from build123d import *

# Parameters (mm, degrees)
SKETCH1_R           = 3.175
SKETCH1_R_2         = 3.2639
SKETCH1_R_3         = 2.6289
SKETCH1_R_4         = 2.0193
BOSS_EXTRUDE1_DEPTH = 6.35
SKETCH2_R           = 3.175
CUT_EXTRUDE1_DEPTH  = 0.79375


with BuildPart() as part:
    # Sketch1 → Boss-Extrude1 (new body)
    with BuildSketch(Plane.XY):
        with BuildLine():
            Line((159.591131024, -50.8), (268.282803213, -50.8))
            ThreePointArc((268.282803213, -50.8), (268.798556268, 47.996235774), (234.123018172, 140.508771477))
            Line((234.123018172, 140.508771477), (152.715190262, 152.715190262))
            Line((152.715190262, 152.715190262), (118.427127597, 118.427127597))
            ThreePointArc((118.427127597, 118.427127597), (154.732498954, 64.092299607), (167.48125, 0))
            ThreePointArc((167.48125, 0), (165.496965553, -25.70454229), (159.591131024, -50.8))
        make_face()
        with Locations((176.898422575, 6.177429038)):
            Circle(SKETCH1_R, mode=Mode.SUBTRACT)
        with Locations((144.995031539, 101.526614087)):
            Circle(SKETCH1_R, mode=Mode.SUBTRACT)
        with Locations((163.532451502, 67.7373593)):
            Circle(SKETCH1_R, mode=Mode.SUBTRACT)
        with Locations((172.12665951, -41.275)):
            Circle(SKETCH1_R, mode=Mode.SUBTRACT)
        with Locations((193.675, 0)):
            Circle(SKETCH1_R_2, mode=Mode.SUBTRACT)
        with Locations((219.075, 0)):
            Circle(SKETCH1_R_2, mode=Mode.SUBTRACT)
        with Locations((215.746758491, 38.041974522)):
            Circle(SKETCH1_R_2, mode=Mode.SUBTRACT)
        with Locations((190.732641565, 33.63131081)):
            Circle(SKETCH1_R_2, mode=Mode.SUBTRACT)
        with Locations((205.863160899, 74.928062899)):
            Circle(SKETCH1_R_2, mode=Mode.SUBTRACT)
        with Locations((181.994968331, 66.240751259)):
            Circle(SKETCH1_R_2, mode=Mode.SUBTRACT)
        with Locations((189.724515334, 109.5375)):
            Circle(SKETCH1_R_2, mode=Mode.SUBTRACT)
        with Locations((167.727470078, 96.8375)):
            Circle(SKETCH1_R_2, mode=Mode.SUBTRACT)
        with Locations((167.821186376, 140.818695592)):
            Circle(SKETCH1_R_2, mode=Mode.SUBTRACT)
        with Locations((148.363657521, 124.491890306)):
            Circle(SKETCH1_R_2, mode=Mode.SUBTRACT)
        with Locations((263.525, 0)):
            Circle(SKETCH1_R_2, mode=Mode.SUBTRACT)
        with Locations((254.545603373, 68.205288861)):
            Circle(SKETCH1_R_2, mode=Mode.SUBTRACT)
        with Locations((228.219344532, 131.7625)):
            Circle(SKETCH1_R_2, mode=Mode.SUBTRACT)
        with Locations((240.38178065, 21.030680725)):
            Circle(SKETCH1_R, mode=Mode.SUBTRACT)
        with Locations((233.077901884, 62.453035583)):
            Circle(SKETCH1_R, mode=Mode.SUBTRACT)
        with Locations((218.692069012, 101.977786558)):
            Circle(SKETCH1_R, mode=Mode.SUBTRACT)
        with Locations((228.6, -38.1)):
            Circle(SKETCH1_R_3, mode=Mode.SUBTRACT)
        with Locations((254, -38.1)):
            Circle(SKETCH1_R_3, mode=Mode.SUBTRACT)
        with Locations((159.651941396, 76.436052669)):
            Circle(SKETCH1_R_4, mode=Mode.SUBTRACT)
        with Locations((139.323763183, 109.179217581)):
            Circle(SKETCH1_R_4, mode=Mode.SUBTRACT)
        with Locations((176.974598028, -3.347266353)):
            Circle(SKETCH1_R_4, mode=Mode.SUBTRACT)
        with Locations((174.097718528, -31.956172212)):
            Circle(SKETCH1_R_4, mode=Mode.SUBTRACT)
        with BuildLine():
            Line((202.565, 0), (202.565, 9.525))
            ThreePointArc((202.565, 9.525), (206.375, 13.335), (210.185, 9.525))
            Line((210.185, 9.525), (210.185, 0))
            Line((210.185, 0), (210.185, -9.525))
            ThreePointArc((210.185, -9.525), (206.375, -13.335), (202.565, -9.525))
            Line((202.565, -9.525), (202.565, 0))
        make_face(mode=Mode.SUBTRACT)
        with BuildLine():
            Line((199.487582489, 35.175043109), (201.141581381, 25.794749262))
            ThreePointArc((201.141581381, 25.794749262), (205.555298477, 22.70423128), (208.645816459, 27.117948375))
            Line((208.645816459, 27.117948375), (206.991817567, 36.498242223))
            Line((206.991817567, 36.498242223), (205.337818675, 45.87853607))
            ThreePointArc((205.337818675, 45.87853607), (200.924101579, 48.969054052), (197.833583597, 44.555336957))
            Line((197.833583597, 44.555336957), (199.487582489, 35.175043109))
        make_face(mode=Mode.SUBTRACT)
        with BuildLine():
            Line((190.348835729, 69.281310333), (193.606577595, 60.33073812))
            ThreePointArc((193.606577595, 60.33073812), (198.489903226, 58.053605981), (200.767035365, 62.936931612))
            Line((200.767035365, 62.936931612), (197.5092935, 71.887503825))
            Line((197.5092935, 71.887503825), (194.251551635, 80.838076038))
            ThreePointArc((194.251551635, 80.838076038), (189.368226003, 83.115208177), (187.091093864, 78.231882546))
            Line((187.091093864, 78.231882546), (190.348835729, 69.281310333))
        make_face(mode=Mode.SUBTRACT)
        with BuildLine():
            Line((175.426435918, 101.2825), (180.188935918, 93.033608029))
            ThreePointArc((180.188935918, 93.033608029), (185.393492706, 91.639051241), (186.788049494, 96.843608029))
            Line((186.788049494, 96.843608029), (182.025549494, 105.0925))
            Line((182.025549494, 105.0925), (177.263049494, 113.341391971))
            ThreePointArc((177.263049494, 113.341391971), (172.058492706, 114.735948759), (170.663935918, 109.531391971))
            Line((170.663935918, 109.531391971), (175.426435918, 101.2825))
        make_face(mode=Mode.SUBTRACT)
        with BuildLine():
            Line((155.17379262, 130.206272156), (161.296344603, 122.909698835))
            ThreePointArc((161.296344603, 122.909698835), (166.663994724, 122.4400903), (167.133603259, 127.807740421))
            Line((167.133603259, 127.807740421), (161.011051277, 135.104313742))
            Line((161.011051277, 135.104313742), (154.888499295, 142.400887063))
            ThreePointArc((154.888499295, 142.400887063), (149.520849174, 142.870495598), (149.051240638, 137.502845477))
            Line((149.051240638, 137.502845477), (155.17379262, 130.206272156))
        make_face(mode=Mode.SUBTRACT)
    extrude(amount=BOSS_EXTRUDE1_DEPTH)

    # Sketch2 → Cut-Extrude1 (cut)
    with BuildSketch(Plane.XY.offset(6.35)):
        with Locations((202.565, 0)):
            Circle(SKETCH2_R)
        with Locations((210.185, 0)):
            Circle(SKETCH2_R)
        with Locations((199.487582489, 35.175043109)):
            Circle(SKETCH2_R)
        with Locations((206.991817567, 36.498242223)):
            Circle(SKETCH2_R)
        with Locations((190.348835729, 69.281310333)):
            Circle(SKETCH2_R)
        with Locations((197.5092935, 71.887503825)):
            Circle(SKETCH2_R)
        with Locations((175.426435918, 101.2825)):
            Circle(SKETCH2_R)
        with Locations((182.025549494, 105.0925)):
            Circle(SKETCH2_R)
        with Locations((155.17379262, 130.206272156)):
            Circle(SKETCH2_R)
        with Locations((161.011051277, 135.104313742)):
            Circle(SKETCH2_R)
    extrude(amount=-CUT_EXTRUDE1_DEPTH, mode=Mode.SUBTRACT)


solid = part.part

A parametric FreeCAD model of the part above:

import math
import FreeCAD as App
import Part
import Sketcher

V = App.Vector
Q = App.Units.Quantity

doc = App.newDocument("Part")
body = doc.addObject("PartDesign::Body", "Body")

# Sketch on XY plane
sketch1 = body.newObject("Sketcher::SketchObject", "Sketch")
sketch1.AttachmentSupport = (doc.getObject("XY_Plane"), [""])
sketch1.MapMode = "FlatFace"
sketch1.addGeometry(Part.LineSegment(V(159.591131, -50.8, 0), V(268.282803, -50.8, 0)), False)
sketch1.addGeometry(Part.ArcOfCircle(Part.Circle(V(0, 0, 0), V(0, 0, 1), 273.05), math.radians(-10.722152), math.radians(30.970047)), False)
sketch1.addGeometry(Part.LineSegment(V(234.123018, 140.508771, 0), V(152.71519, 152.71519, 0)), False)
sketch1.addGeometry(Part.LineSegment(V(152.71519, 152.71519, 0), V(118.427128, 118.427128, 0)), False)
sketch1.addGeometry(Part.ArcOfCircle(Part.Circle(V(0, 0, 0), V(0, 0, 1), 167.48125), math.radians(0), math.radians(45)), False)
sketch1.addGeometry(Part.ArcOfCircle(Part.Circle(V(0, 0, 0), V(0, 0, 1), 167.48125), math.radians(-17.656971), math.radians(0)), False)
sketch1.addGeometry(Part.Circle(V(172.12666, -41.275, 0), V(0, 0, 1), 3.175), False)
sketch1.addGeometry(Part.Circle(V(174.097719, -31.956172, 0), V(0, 0, 1), 2.0193), False)
sketch1.addGeometry(Part.Circle(V(176.974598, -3.347266, 0), V(0, 0, 1), 2.0193), False)
sketch1.addGeometry(Part.Circle(V(193.675, 0, 0), V(0, 0, 1), 3.2639), False)
sketch1.addGeometry(Part.Circle(V(176.898423, 6.177429, 0), V(0, 0, 1), 3.175), False)
sketch1.addGeometry(Part.Circle(V(190.732642, 33.631311, 0), V(0, 0, 1), 3.2639), False)
sketch1.addGeometry(Part.Circle(V(228.6, -38.1, 0), V(0, 0, 1), 2.6289), False)
sketch1.addGeometry(Part.LineSegment(V(202.565, -9.525, 0), V(202.565, 9.525, 0)), False)
sketch1.addGeometry(Part.ArcOfCircle(Part.Circle(V(206.375, 9.525, 0), V(0, 0, 1), 3.81), math.radians(0), math.radians(180)), False)
sketch1.addGeometry(Part.LineSegment(V(210.185, 9.525, 0), V(210.185, -9.525, 0)), False)
sketch1.addGeometry(Part.ArcOfCircle(Part.Circle(V(206.375, -9.525, 0), V(0, 0, 1), 3.81), math.radians(180), math.radians(360)), False)
sketch1.addGeometry(Part.Circle(V(219.075, 0, 0), V(0, 0, 1), 3.2639), False)
sketch1.addGeometry(Part.Circle(V(254, -38.1, 0), V(0, 0, 1), 2.6289), False)
sketch1.addGeometry(Part.Circle(V(263.525, 0, 0), V(0, 0, 1), 3.2639), False)
sketch1.addGeometry(Part.LineSegment(V(201.141581, 25.794749, 0), V(199.487582, 35.175043, 0)), False)
sketch1.addGeometry(Part.LineSegment(V(199.487582, 35.175043, 0), V(197.833584, 44.555337, 0)), False)
sketch1.addGeometry(Part.ArcOfCircle(Part.Circle(V(201.585701, 45.216937, 0), V(0, 0, 1), 3.81), math.radians(10), math.radians(190)), False)
sketch1.addGeometry(Part.LineSegment(V(205.337819, 45.878536, 0), V(206.991818, 36.498242, 0)), False)
sketch1.addGeometry(Part.LineSegment(V(206.991818, 36.498242, 0), V(208.645816, 27.117948, 0)), False)
sketch1.addGeometry(Part.ArcOfCircle(Part.Circle(V(204.893699, 26.456349, 0), V(0, 0, 1), 3.81), math.radians(-170), math.radians(10)), False)
sketch1.addGeometry(Part.Circle(V(215.746758, 38.041975, 0), V(0, 0, 1), 3.2639), False)
sketch1.addGeometry(Part.Circle(V(240.381781, 21.030681, 0), V(0, 0, 1), 3.175), False)
sketch1.addGeometry(Part.Circle(V(163.532452, 67.737359, 0), V(0, 0, 1), 3.175), False)
sketch1.addGeometry(Part.Circle(V(159.651941, 76.436053, 0), V(0, 0, 1), 2.0193), False)
sketch1.addGeometry(Part.Circle(V(167.72747, 96.8375, 0), V(0, 0, 1), 3.2639), False)
sketch1.addGeometry(Part.Circle(V(181.994968, 66.240751, 0), V(0, 0, 1), 3.2639), False)
sketch1.addGeometry(Part.LineSegment(V(193.606578, 60.330738, 0), V(190.348836, 69.28131, 0)), False)
sketch1.addGeometry(Part.LineSegment(V(190.348836, 69.28131, 0), V(187.091094, 78.231883, 0)), False)
sketch1.addGeometry(Part.ArcOfCircle(Part.Circle(V(190.671323, 79.534979, 0), V(0, 0, 1), 3.81), math.radians(20), math.radians(200)), False)
sketch1.addGeometry(Part.LineSegment(V(194.251552, 80.838076, 0), V(200.767035, 62.936932, 0)), False)
sketch1.addGeometry(Part.ArcOfCircle(Part.Circle(V(197.186806, 61.633835, 0), V(0, 0, 1), 3.81), math.radians(-160), math.radians(20)), False)
sketch1.addGeometry(Part.Circle(V(144.995032, 101.526614, 0), V(0, 0, 1), 3.175), False)
sketch1.addGeometry(Part.Circle(V(139.323763, 109.179218, 0), V(0, 0, 1), 2.0193), False)
sketch1.addGeometry(Part.Circle(V(148.363658, 124.49189, 0), V(0, 0, 1), 3.2639), False)
sketch1.addGeometry(Part.LineSegment(V(161.296345, 122.909699, 0), V(155.173793, 130.206272, 0)), False)
sketch1.addGeometry(Part.LineSegment(V(155.173793, 130.206272, 0), V(149.051241, 137.502845, 0)), False)
sketch1.addGeometry(Part.ArcOfCircle(Part.Circle(V(151.96987, 139.951866, 0), V(0, 0, 1), 3.81), math.radians(40), math.radians(220)), False)
sketch1.addGeometry(Part.LineSegment(V(154.888499, 142.400887, 0), V(167.133603, 127.80774, 0)), False)
sketch1.addGeometry(Part.ArcOfCircle(Part.Circle(V(164.214974, 125.35872, 0), V(0, 0, 1), 3.81), math.radians(-140), math.radians(40)), False)
sketch1.addGeometry(Part.Circle(V(167.821186, 140.818696, 0), V(0, 0, 1), 3.2639), False)
sketch1.addGeometry(Part.ArcOfCircle(Part.Circle(V(183.488493, 94.938608, 0), V(0, 0, 1), 3.81), math.radians(-150), math.radians(30)), False)
sketch1.addGeometry(Part.LineSegment(V(180.188936, 93.033608, 0), V(170.663936, 109.531392, 0)), False)
sketch1.addGeometry(Part.ArcOfCircle(Part.Circle(V(173.963493, 111.436392, 0), V(0, 0, 1), 3.81), math.radians(30), math.radians(210)), False)
sketch1.addGeometry(Part.LineSegment(V(177.263049, 113.341392, 0), V(186.788049, 96.843608, 0)), False)
sketch1.addGeometry(Part.Circle(V(189.724515, 109.5375, 0), V(0, 0, 1), 3.2639), False)
sketch1.addGeometry(Part.Circle(V(233.077902, 62.453036, 0), V(0, 0, 1), 3.175), False)
sketch1.addGeometry(Part.Circle(V(205.863161, 74.928063, 0), V(0, 0, 1), 3.2639), False)
sketch1.addGeometry(Part.Circle(V(254.545603, 68.205289, 0), V(0, 0, 1), 3.2639), False)
sketch1.addGeometry(Part.Circle(V(218.692069, 101.977787, 0), V(0, 0, 1), 3.175), False)
sketch1.addGeometry(Part.Circle(V(228.219345, 131.7625, 0), V(0, 0, 1), 3.2639), False)
sketch1.addConstraint(Sketcher.Constraint("Coincident", 0, 2, 1, 1))
sketch1.addConstraint(Sketcher.Constraint("Coincident", 1, 2, 2, 1))
sketch1.addConstraint(Sketcher.Constraint("Coincident", 2, 2, 3, 1))
sketch1.addConstraint(Sketcher.Constraint("Coincident", 3, 2, 4, 2))
sketch1.addConstraint(Sketcher.Constraint("Tangent", 4, 1, 5, 2))
sketch1.addConstraint(Sketcher.Constraint("Coincident", 5, 1, 0, 1))
sketch1.addConstraint(Sketcher.Constraint("Tangent", 13, 2, 14, 2))
sketch1.addConstraint(Sketcher.Constraint("Tangent", 14, 1, 15, 1))
sketch1.addConstraint(Sketcher.Constraint("Tangent", 15, 2, 16, 2))
sketch1.addConstraint(Sketcher.Constraint("Tangent", 16, 1, 13, 1))
sketch1.addConstraint(Sketcher.Constraint("Coincident", 20, 2, 21, 1))
sketch1.addConstraint(Sketcher.Constraint("Tangent", 21, 2, 22, 2))
sketch1.addConstraint(Sketcher.Constraint("Tangent", 22, 1, 23, 1))
sketch1.addConstraint(Sketcher.Constraint("Coincident", 23, 2, 24, 1))
sketch1.addConstraint(Sketcher.Constraint("Tangent", 24, 2, 25, 2))
sketch1.addConstraint(Sketcher.Constraint("Tangent", 25, 1, 20, 1))
sketch1.addConstraint(Sketcher.Constraint("Coincident", 32, 2, 33, 1))
sketch1.addConstraint(Sketcher.Constraint("Tangent", 33, 2, 34, 2))
sketch1.addConstraint(Sketcher.Constraint("Tangent", 34, 1, 35, 1))
sketch1.addConstraint(Sketcher.Constraint("Tangent", 35, 2, 36, 2))
sketch1.addConstraint(Sketcher.Constraint("Tangent", 36, 1, 32, 1))
sketch1.addConstraint(Sketcher.Constraint("Coincident", 40, 2, 41, 1))
sketch1.addConstraint(Sketcher.Constraint("Tangent", 41, 2, 42, 2))
sketch1.addConstraint(Sketcher.Constraint("Tangent", 42, 1, 43, 1))
sketch1.addConstraint(Sketcher.Constraint("Tangent", 43, 2, 44, 2))
sketch1.addConstraint(Sketcher.Constraint("Tangent", 44, 1, 40, 1))
sketch1.addConstraint(Sketcher.Constraint("Tangent", 46, 1, 47, 1))
sketch1.addConstraint(Sketcher.Constraint("Tangent", 47, 2, 48, 2))
sketch1.addConstraint(Sketcher.Constraint("Tangent", 48, 1, 49, 1))
sketch1.addConstraint(Sketcher.Constraint("Tangent", 49, 2, 46, 2))
sketch1.addConstraint(Sketcher.Constraint("Horizontal", 0))
sketch1.addConstraint(Sketcher.Constraint("Vertical", 13))
sketch1.addConstraint(Sketcher.Constraint("Vertical", 15))
sketch1.addConstraint(Sketcher.Constraint("Coincident", 1, 3, -1, 1))
sketch1.addConstraint(Sketcher.Constraint("Coincident", 4, 3, -1, 1))
sketch1.addConstraint(Sketcher.Constraint("Equal", 4, 5))
sketch1.addConstraint(Sketcher.Constraint("Equal", 7, 8))
sketch1.addConstraint(Sketcher.Constraint("Equal", 6, 10))
sketch1.addConstraint(Sketcher.Constraint("Equal", 9, 11))
sketch1.addConstraint(Sketcher.Constraint("Equal", 11, 17))
sketch1.addConstraint(Sketcher.Constraint("Equal", 12, 18))
sketch1.addConstraint(Sketcher.Constraint("Equal", 17, 19))
sketch1.addConstraint(Sketcher.Constraint("Equal", 16, 22))
sketch1.addConstraint(Sketcher.Constraint("Equal", 22, 25))
sketch1.addConstraint(Sketcher.Constraint("Equal", 19, 26))
sketch1.addConstraint(Sketcher.Constraint("Equal", 10, 27))
sketch1.addConstraint(Sketcher.Constraint("Equal", 27, 28))
sketch1.addConstraint(Sketcher.Constraint("Equal", 8, 29))
sketch1.addConstraint(Sketcher.Constraint("Equal", 26, 30))
sketch1.addConstraint(Sketcher.Constraint("Equal", 30, 31))
sketch1.addConstraint(Sketcher.Constraint("Equal", 25, 34))
sketch1.addConstraint(Sketcher.Constraint("Equal", 34, 36))
sketch1.addConstraint(Sketcher.Constraint("Equal", 28, 37))
sketch1.addConstraint(Sketcher.Constraint("Equal", 29, 38))
sketch1.addConstraint(Sketcher.Constraint("Equal", 31, 39))
sketch1.addConstraint(Sketcher.Constraint("Equal", 36, 42))
sketch1.addConstraint(Sketcher.Constraint("Equal", 42, 44))
sketch1.addConstraint(Sketcher.Constraint("Equal", 39, 45))
sketch1.addConstraint(Sketcher.Constraint("Equal", 44, 46))
sketch1.addConstraint(Sketcher.Constraint("Equal", 46, 48))
sketch1.addConstraint(Sketcher.Constraint("Equal", 45, 50))
sketch1.addConstraint(Sketcher.Constraint("Equal", 37, 51))
sketch1.addConstraint(Sketcher.Constraint("Equal", 50, 52))
sketch1.addConstraint(Sketcher.Constraint("Equal", 52, 53))
sketch1.addConstraint(Sketcher.Constraint("Equal", 51, 54))
sketch1.addConstraint(Sketcher.Constraint("Equal", 53, 55))
sketch1.addConstraint(Sketcher.Constraint("PointOnObject", 9, 3, -1))
sketch1.addConstraint(Sketcher.Constraint("PointOnObject", 17, 3, -1))
sketch1.addConstraint(Sketcher.Constraint("PointOnObject", 19, 3, -1))
sketch1.addConstraint(Sketcher.Constraint("PointOnObject", 4, 1, -1))
sketch1.addConstraint(Sketcher.Constraint("Parallel", 20, 21))
sketch1.addConstraint(Sketcher.Constraint("Parallel", 21, 23))
sketch1.addConstraint(Sketcher.Constraint("Parallel", 32, 33))
sketch1.addConstraint(Sketcher.Constraint("Parallel", 40, 41))
sketch1.addConstraint(Sketcher.Constraint("Horizontal", 12, 3, 18, 3))
sketch1.addConstraint(Sketcher.Constraint("Equal", 20, 21))
sketch1.addConstraint(Sketcher.Constraint("Equal", 21, 23))
sketch1.addConstraint(Sketcher.Constraint("Equal", 24, 32))
sketch1.addConstraint(Sketcher.Constraint("Equal", 32, 33))
sketch1.addConstraint(Sketcher.Constraint("Equal", 33, 40))
sketch1.addConstraint(Sketcher.Constraint("Equal", 40, 41))
sketch1.addConstraint(Sketcher.Constraint("Equal", 43, 47))
sketch1.addConstraint(Sketcher.Constraint("Diameter", 6, Q("0.25 in")))
sketch1.addConstraint(Sketcher.Constraint("Radius", 1, Q("10.75 in")))
sketch1.addConstraint(Sketcher.Constraint("Radius", 14, Q("0.15 in")))
sketch1.addConstraint(Sketcher.Constraint("Diameter", 7, Q("0.159 in")))
sketch1.addConstraint(Sketcher.Constraint("Diameter", 9, Q("0.257 in")))
sketch1.addConstraint(Sketcher.Constraint("Diameter", 12, Q("0.207 in")))
sketch1.addConstraint(Sketcher.Constraint("DistanceX", -1, 1, 12, 3, Q("9 in")))
sketch1.addConstraint(Sketcher.Constraint("DistanceX", -1, 1, 18, 3, Q("10 in")))
sketch1.addConstraint(Sketcher.Constraint("DistanceY", 0, 2, -1, 1, Q("2 in")))
sketch1.addConstraint(Sketcher.Constraint("Angle", 3, Q("-135 deg")))
sketch1.addConstraint(Sketcher.Constraint("Angle", 20, Q("100 deg")))
sketch1.addConstraint(Sketcher.Constraint("Angle", 32, Q("110 deg")))
sketch1.addConstraint(Sketcher.Constraint("Angle", 40, Q("130 deg")))
sketch1.addConstraint(Sketcher.Constraint("Angle", 47, Q("120 deg")))
sketch1.addConstraint(Sketcher.Constraint("Radius", 4, Q("6.59375 in")))
sketch1.addConstraint(Sketcher.Constraint("DistanceY", 13, 1, 13, 2, Q("0.75 in")))
sketch1.addConstraint(Sketcher.Constraint("DistanceY", 12, 3, -1, 1, Q("1.5 in")))
sketch1.addConstraint(Sketcher.Constraint("Distance", 35, Q("0.75 in")))
sketch1.addConstraint(Sketcher.Constraint("DistanceY", 6, 3, -1, 1, Q("1.625 in")))
sketch1.addConstraint(Sketcher.Constraint("DistanceX", -1, 1, 9, 3, Q("7.625 in")))
sketch1.addConstraint(Sketcher.Constraint("DistanceX", -1, 1, 14, 3, Q("8.125 in")))
sketch1.addConstraint(Sketcher.Constraint("DistanceY", -1, 1, 14, 3, Q("0.375 in")))
sketch1.addConstraint(Sketcher.Constraint("DistanceX", -1, 1, 17, 3, Q("8.625 in")))
sketch1.addConstraint(Sketcher.Constraint("DistanceX", -1, 1, 19, 3, Q("10.375 in")))
sketch1.addConstraint(Sketcher.Constraint("DistanceY", -1, 1, 30, 3, Q("3.8125 in")))
sketch1.addConstraint(Sketcher.Constraint("DistanceY", -1, 1, 50, 3, Q("4.3125 in")))
sketch1.addConstraint(Sketcher.Constraint("DistanceY", -1, 1, 55, 3, Q("5.1875 in")))
sketch1.addConstraint(Sketcher.Constraint("DistanceX", -1, 1, 8, 3, Q("176.974598 mm")))
sketch1.addConstraint(Sketcher.Constraint("DistanceX", -1, 1, 22, 3, Q("201.585701 mm")))
sketch1.addConstraint(Sketcher.Constraint("DistanceX", -1, 1, 51, 3, Q("233.077902 mm")))
sketch1.addConstraint(Sketcher.Constraint("DistanceX", -1, 1, 42, 1, Q("154.888499 mm")))
sketch1.addConstraint(Sketcher.Constraint("DistanceY", -1, 1, 44, 1, Q("122.909699 mm")))
sketch1.addConstraint(Sketcher.Constraint("DistanceX", -1, 1, 6, 3, Q("172.12666 mm")))
sketch1.addConstraint(Sketcher.Constraint("DistanceX", -1, 1, 7, 3, Q("174.097719 mm")))
sketch1.addConstraint(Sketcher.Constraint("DistanceY", -1, 1, 10, 3, Q("6.177429 mm")))
sketch1.addConstraint(Sketcher.Constraint("DistanceX", -1, 1, 11, 3, Q("190.732642 mm")))
sketch1.addConstraint(Sketcher.Constraint("DistanceY", -1, 1, 11, 3, Q("33.631311 mm")))
sketch1.addConstraint(Sketcher.Constraint("DistanceY", -1, 1, 25, 3, Q("26.456349 mm")))
sketch1.addConstraint(Sketcher.Constraint("DistanceX", -1, 1, 26, 3, Q("215.746758 mm")))
sketch1.addConstraint(Sketcher.Constraint("DistanceX", -1, 1, 27, 3, Q("240.381781 mm")))
sketch1.addConstraint(Sketcher.Constraint("DistanceY", -1, 1, 27, 3, Q("21.030681 mm")))
sketch1.addConstraint(Sketcher.Constraint("DistanceX", -1, 1, 28, 3, Q("163.532452 mm")))
sketch1.addConstraint(Sketcher.Constraint("DistanceY", -1, 1, 28, 3, Q("67.737359 mm")))
sketch1.addConstraint(Sketcher.Constraint("DistanceX", -1, 1, 29, 3, Q("159.651941 mm")))
sketch1.addConstraint(Sketcher.Constraint("DistanceX", -1, 1, 30, 3, Q("167.72747 mm")))
sketch1.addConstraint(Sketcher.Constraint("DistanceX", -1, 1, 31, 3, Q("181.994968 mm")))
sketch1.addConstraint(Sketcher.Constraint("DistanceY", -1, 1, 31, 3, Q("66.240751 mm")))
sketch1.addConstraint(Sketcher.Constraint("DistanceY", -1, 1, 34, 3, Q("79.534979 mm")))
sketch1.addConstraint(Sketcher.Constraint("DistanceX", -1, 1, 37, 3, Q("144.995032 mm")))
sketch1.addConstraint(Sketcher.Constraint("DistanceY", -1, 1, 39, 3, Q("124.49189 mm")))
sketch1.addConstraint(Sketcher.Constraint("DistanceY", -1, 1, 46, 3, Q("94.938608 mm")))
sketch1.addConstraint(Sketcher.Constraint("DistanceX", -1, 1, 52, 3, Q("205.863161 mm")))
sketch1.addConstraint(Sketcher.Constraint("DistanceY", -1, 1, 53, 3, Q("68.205289 mm")))
sketch1.addConstraint(Sketcher.Constraint("DistanceX", -1, 1, 54, 3, Q("218.692069 mm")))
sketch1.addConstraint(Sketcher.Constraint("DistanceX", -1, 1, 1, 2, Q("234.123018 mm")))
sketch1.addConstraint(Sketcher.Constraint("DistanceX", -1, 1, 2, 2, Q("152.71519 mm")))
sketch1.addConstraint(Sketcher.Constraint("DistanceY", -1, 1, 2, 2, Q("152.71519 mm")))
sketch1.addConstraint(Sketcher.Constraint("DistanceX", -1, 1, 34, 1, Q("194.251552 mm")))
sketch1.addConstraint(Sketcher.Constraint("DistanceX", -1, 1, 48, 1, Q("177.263049 mm")))
sketch1.addConstraint(Sketcher.Constraint("DistanceY", 7, 3, -1, 1, Q("31.956172 mm")))
sketch1.addConstraint(Sketcher.Constraint("DistanceY", 8, 3, -1, 1, Q("3.347266 mm")))
sketch1.addConstraint(Sketcher.Constraint("DistanceX", -1, 1, 10, 3, Q("176.898423 mm")))
sketch1.addConstraint(Sketcher.Constraint("DistanceY", -1, 1, 26, 3, Q("38.041975 mm")))
sketch1.addConstraint(Sketcher.Constraint("DistanceY", -1, 1, 29, 3, Q("76.436053 mm")))
sketch1.addConstraint(Sketcher.Constraint("DistanceY", -1, 1, 37, 3, Q("101.526614 mm")))
sketch1.addConstraint(Sketcher.Constraint("DistanceX", -1, 1, 38, 3, Q("139.323763 mm")))
sketch1.addConstraint(Sketcher.Constraint("DistanceY", -1, 1, 38, 3, Q("109.179218 mm")))
sketch1.addConstraint(Sketcher.Constraint("DistanceX", -1, 1, 39, 3, Q("148.363658 mm")))
sketch1.addConstraint(Sketcher.Constraint("DistanceX", -1, 1, 45, 3, Q("167.821186 mm")))
sketch1.addConstraint(Sketcher.Constraint("DistanceY", -1, 1, 45, 3, Q("140.818696 mm")))
sketch1.addConstraint(Sketcher.Constraint("DistanceX", -1, 1, 50, 3, Q("189.724515 mm")))
sketch1.addConstraint(Sketcher.Constraint("DistanceY", -1, 1, 51, 3, Q("62.453036 mm")))
sketch1.addConstraint(Sketcher.Constraint("DistanceY", -1, 1, 52, 3, Q("74.928063 mm")))
sketch1.addConstraint(Sketcher.Constraint("DistanceX", -1, 1, 53, 3, Q("254.545603 mm")))
sketch1.addConstraint(Sketcher.Constraint("DistanceY", -1, 1, 54, 3, Q("101.977787 mm")))
sketch1.addConstraint(Sketcher.Constraint("DistanceX", -1, 1, 55, 3, Q("228.219345 mm")))
pad1 = body.newObject("PartDesign::Pad", "Pad")
pad1.Profile = sketch1
pad1.Length = Q("0.25 in")

# Sketch on XY plane
sketch2 = body.newObject("Sketcher::SketchObject", "Sketch001")
sketch2.AttachmentSupport = (doc.getObject("XY_Plane"), [""])
sketch2.MapMode = "FlatFace"
sketch2.AttachmentOffset = App.Placement(V(0, 0, 0.25 * 25.4), App.Rotation())
sketch2.addGeometry(Part.Circle(V(202.565, 0, 0), V(0, 0, 1), 3.175), False)
sketch2.addGeometry(Part.Circle(V(210.185, 0, 0), V(0, 0, 1), 3.175), False)
sketch2.addGeometry(Part.Circle(V(199.487582, 35.175043, 0), V(0, 0, 1), 3.175), False)
sketch2.addGeometry(Part.Circle(V(206.991818, 36.498242, 0), V(0, 0, 1), 3.175), False)
sketch2.addGeometry(Part.Circle(V(190.348836, 69.28131, 0), V(0, 0, 1), 3.175), False)
sketch2.addGeometry(Part.Circle(V(197.509294, 71.887504, 0), V(0, 0, 1), 3.175), False)
sketch2.addGeometry(Part.Circle(V(175.426436, 101.2825, 0), V(0, 0, 1), 3.175), False)
sketch2.addGeometry(Part.Circle(V(182.025549, 105.0925, 0), V(0, 0, 1), 3.175), False)
sketch2.addGeometry(Part.Circle(V(155.173793, 130.206272, 0), V(0, 0, 1), 3.175), False)
sketch2.addGeometry(Part.Circle(V(161.011051, 135.104314, 0), V(0, 0, 1), 3.175), False)
sketch2.addConstraint(Sketcher.Constraint("Equal", 0, 1))
sketch2.addConstraint(Sketcher.Constraint("Equal", 1, 2))
sketch2.addConstraint(Sketcher.Constraint("Equal", 2, 3))
sketch2.addConstraint(Sketcher.Constraint("Equal", 3, 4))
sketch2.addConstraint(Sketcher.Constraint("Equal", 4, 5))
sketch2.addConstraint(Sketcher.Constraint("Equal", 5, 6))
sketch2.addConstraint(Sketcher.Constraint("Equal", 6, 7))
sketch2.addConstraint(Sketcher.Constraint("Equal", 7, 8))
sketch2.addConstraint(Sketcher.Constraint("Equal", 8, 9))
sketch2.addConstraint(Sketcher.Constraint("PointOnObject", 0, 3, -1))
sketch2.addConstraint(Sketcher.Constraint("PointOnObject", 1, 3, -1))
sketch2.addConstraint(Sketcher.Constraint("Diameter", 0, Q("0.25 in")))
sketch2.addConstraint(Sketcher.Constraint("DistanceX", 0, 3, 1, 3, Q("0.3 in")))
sketch2.addConstraint(Sketcher.Constraint("DistanceY", 6, 3, 7, 3, Q("0.15 in")))
sketch2.addConstraint(Sketcher.Constraint("DistanceX", -1, 1, 0, 3, Q("7.975 in")))
sketch2.addConstraint(Sketcher.Constraint("DistanceY", -1, 1, 6, 3, Q("3.9875 in")))
sketch2.addConstraint(Sketcher.Constraint("DistanceY", 2, 3, 3, 3, Q("1.323199 mm")))
sketch2.addConstraint(Sketcher.Constraint("DistanceX", 6, 3, 4, 3, Q("14.9224 mm")))
sketch2.addConstraint(Sketcher.Constraint("DistanceX", 8, 3, 5, 3, Q("42.335501 mm")))
sketch2.addConstraint(Sketcher.Constraint("DistanceX", 9, 3, 7, 3, Q("21.014498 mm")))
sketch2.addConstraint(Sketcher.Constraint("DistanceY", -1, 1, 4, 3, Q("69.28131 mm")))
sketch2.addConstraint(Sketcher.Constraint("DistanceX", -1, 1, 7, 3, Q("182.025549 mm")))
sketch2.addConstraint(Sketcher.Constraint("DistanceX", 4, 3, 3, 3, Q("16.642982 mm")))
sketch2.addConstraint(Sketcher.Constraint("DistanceY", 3, 3, 4, 3, Q("32.783068 mm")))
sketch2.addConstraint(Sketcher.Constraint("DistanceY", 3, 3, 5, 3, Q("35.389262 mm")))
sketch2.addConstraint(Sketcher.Constraint("DistanceX", 5, 3, 2, 3, Q("1.978289 mm")))
sketch2.addConstraint(Sketcher.Constraint("DistanceX", 7, 3, 3, 3, Q("24.966268 mm")))
sketch2.addConstraint(Sketcher.Constraint("DistanceY", 4, 3, 8, 3, Q("60.924962 mm")))
sketch2.addConstraint(Sketcher.Constraint("DistanceX", 8, 3, 9, 3, Q("5.837259 mm")))
sketch2.addConstraint(Sketcher.Constraint("DistanceY", 8, 3, 9, 3, Q("4.898042 mm")))
pocket1 = body.newObject("PartDesign::Pocket", "Pocket")
pocket1.Profile = sketch2
pocket1.Length = Q("0.03125 in")

doc.recompute()
